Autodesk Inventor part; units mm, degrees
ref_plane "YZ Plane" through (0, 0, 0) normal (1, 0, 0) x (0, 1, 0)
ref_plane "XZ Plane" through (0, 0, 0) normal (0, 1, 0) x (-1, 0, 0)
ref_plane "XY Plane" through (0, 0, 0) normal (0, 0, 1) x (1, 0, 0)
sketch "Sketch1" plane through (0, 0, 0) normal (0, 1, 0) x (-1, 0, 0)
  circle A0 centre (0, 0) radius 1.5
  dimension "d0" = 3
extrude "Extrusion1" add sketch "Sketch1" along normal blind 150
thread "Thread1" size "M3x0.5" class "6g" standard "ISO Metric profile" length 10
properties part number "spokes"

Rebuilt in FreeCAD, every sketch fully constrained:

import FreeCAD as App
import Part
import Sketcher
Q = App.Units.Quantity

doc = App.newDocument("Part")
body = doc.addObject("PartDesign::Body", "Body")

# Sketch on XZ plane
sketch1 = body.newObject("Sketcher::SketchObject", "Sketch")
sketch1.AttachmentSupport = (doc.getObject("XZ_Plane"), [""])
sketch1.MapMode = "FlatFace"
sketch1.addGeometry(Part.Circle(App.Vector(0, 0, 0), App.Vector(0, 0, 1), 1.5), False)
sketch1.addConstraint(Sketcher.Constraint("Coincident", 0, 3, -1, 1))
sketch1.addConstraint(Sketcher.Constraint("Diameter", 0, Q("3 mm")))
pad1 = body.newObject("PartDesign::Pad", "Pad")
pad1.Profile = sketch1
pad1.Length = 150
pad1.Reversed = True

doc.recompute()
